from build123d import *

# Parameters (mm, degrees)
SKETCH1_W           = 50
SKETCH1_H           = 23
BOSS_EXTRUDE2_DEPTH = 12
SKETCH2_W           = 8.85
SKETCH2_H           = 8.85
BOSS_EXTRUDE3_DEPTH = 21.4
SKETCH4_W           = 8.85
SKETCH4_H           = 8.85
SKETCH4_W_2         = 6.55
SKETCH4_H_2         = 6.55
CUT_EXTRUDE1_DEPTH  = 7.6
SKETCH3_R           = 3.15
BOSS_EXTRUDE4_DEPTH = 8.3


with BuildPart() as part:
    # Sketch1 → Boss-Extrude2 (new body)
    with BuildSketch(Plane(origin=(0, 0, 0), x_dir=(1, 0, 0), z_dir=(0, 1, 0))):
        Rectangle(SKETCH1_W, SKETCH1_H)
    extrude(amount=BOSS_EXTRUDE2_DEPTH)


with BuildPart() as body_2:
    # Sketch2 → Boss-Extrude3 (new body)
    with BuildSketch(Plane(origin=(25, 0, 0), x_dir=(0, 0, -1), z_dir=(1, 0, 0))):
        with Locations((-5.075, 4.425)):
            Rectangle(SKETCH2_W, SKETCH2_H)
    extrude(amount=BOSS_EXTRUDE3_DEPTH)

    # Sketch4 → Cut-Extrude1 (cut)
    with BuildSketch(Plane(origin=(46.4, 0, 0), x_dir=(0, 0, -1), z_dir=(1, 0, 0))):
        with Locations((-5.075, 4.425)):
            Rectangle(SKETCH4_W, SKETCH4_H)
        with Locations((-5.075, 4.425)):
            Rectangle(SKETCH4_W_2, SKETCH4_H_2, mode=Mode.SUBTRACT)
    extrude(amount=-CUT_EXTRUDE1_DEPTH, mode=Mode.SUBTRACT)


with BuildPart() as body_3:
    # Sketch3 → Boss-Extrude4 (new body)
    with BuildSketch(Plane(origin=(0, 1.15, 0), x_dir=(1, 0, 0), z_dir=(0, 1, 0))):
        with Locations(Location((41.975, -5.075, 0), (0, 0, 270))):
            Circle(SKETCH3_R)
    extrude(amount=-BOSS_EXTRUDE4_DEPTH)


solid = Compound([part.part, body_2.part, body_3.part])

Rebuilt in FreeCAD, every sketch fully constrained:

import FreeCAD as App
import Part
import Sketcher

doc = App.newDocument("Part")
params = doc.addObject("Spreadsheet::Sheet", "Params")
for row, (alias, value) in enumerate([
    ("sketch1_width", "50 mm"),
    ("sketch1_height", "23 mm"),
    ("pad1_length", "12 mm"),
    ("sketch2_width", "8.85 mm"),
    ("pad2_length", "21.4 mm"),
    ("sketch3_width", "8.85 mm"),
    ("sketch3_width2", "6.55 mm"),
    ("pocket1_length", "7.6 mm"),
    ("sketch4_diameter", "6.3 mm"),
    ("pad3_length", "8.3 mm"),
], start=1):
    params.set(f"A{row}", alias)
    params.set(f"B{row}", "=" + value)
    params.setAlias(f"B{row}", alias)

body = doc.addObject("PartDesign::Body", "Body")

sketch1 = body.newObject("Sketcher::SketchObject", "Sketch")
sketch1.AttachmentSupport = (doc.getObject("XZ_Plane"), [""])
sketch1.MapMode = "FlatFace"
sketch1.addGeometry([
    Part.LineSegment(App.Vector(-25, -12, 0), App.Vector(-25, 12, 0)),
    Part.LineSegment(App.Vector(-25, 12, 0), App.Vector(25, 12, 0)),
    Part.LineSegment(App.Vector(25, 12, 0), App.Vector(25, -12, 0)),
    Part.LineSegment(App.Vector(25, -12, 0), App.Vector(-25, -12, 0)),
], False)
sketch1.addConstraint([
    Sketcher.Constraint("Coincident", 0, 2, 1, 1),
    Sketcher.Constraint("Coincident", 1, 2, 2, 1),
    Sketcher.Constraint("Coincident", 2, 2, 3, 1),
    Sketcher.Constraint("Coincident", 3, 2, 0, 1),
    Sketcher.Constraint("Vertical", 0),
    Sketcher.Constraint("Horizontal", 1),
    Sketcher.Constraint("Vertical", 2),
    Sketcher.Constraint("Horizontal", 3),
    Sketcher.Constraint("Symmetric", 0, 2, 2, 2, -1, 1),
    Sketcher.Constraint("DistanceX", 1, 1, 1, 2, 50.0),
    Sketcher.Constraint("DistanceY", 0, 1, 0, 2, 23.0),
])
sketch1.setExpression("Constraints[9]", "Params.sketch1_width")
sketch1.setExpression("Constraints[10]", "Params.sketch1_height")
pad1 = body.newObject("PartDesign::Pad", "Pad")
pad1.Profile = sketch1
pad1.setExpression("Length", "Params.pad1_length")
pad1.Reversed = True
body2 = doc.addObject("PartDesign::Body", "Body001")

sketch2 = body2.newObject("Sketcher::SketchObject", "Sketch001")
sketch2.AttachmentSupport = (doc.getObject("YZ_Plane001"), [""])
sketch2.MapMode = "FlatFace"
sketch2.AttachmentOffset = App.Placement(App.Vector(0, 0, 25), App.Rotation())
sketch2.addGeometry([
    Part.LineSegment(App.Vector(9, 10, 0), App.Vector(0, 10, 0)),
    Part.LineSegment(App.Vector(0, 10, 0), App.Vector(0, 1, 0)),
    Part.LineSegment(App.Vector(0, 1, 0), App.Vector(9, 1, 0)),
    Part.LineSegment(App.Vector(9, 1, 0), App.Vector(9, 10, 0)),
], False)
sketch2.addConstraint([
    Sketcher.Constraint("Coincident", 0, 2, 1, 1),
    Sketcher.Constraint("Coincident", 1, 2, 2, 1),
    Sketcher.Constraint("Coincident", 2, 2, 3, 1),
    Sketcher.Constraint("Coincident", 3, 2, 0, 1),
    Sketcher.Constraint("Horizontal", 0),
    Sketcher.Constraint("Vertical", 1),
    Sketcher.Constraint("Horizontal", 2),
    Sketcher.Constraint("Vertical", 3),
    Sketcher.Constraint("PointOnObject", 0, 2, -2),
    Sketcher.Constraint("Equal", 2, 1),
    Sketcher.Constraint("DistanceX", 0, 2, 0, 1, 8.85),
    Sketcher.Constraint("DistanceY", -1, 1, 0, 2, 9.5),
])
sketch2.setExpression("Constraints[10]", "Params.sketch2_width")
pad2 = body2.newObject("PartDesign::Pad", "Pad001")
pad2.Profile = sketch2
pad2.setExpression("Length", "Params.pad2_length")

sketch3 = body2.newObject("Sketcher::SketchObject", "Sketch002")
sketch3.AttachmentSupport = (doc.getObject("YZ_Plane001"), [""])
sketch3.MapMode = "FlatFace"
sketch3.AttachmentOffset = App.Placement(App.Vector(0, 0, 46.4), App.Rotation())
sketch3.addGeometry([
    Part.LineSegment(App.Vector(9, 10, 0), App.Vector(0, 10, 0)),
    Part.LineSegment(App.Vector(0, 10, 0), App.Vector(0, 1, 0)),
    Part.LineSegment(App.Vector(0, 1, 0), App.Vector(9, 1, 0)),
    Part.LineSegment(App.Vector(9, 1, 0), App.Vector(9, 10, 0)),
    Part.LineSegment(App.Vector(1, 2, 0), App.Vector(1, 8, 0)),
    Part.LineSegment(App.Vector(1, 8, 0), App.Vector(8, 8, 0)),
    Part.LineSegment(App.Vector(8, 8, 0), App.Vector(8, 2, 0)),
    Part.LineSegment(App.Vector(8, 2, 0), App.Vector(1, 2, 0)),
], False)
sketch3.addConstraint([
    Sketcher.Constraint("Coincident", 0, 2, 1, 1),
    Sketcher.Constraint("Coincident", 1, 2, 2, 1),
    Sketcher.Constraint("Coincident", 2, 2, 3, 1),
    Sketcher.Constraint("Coincident", 3, 2, 0, 1),
    Sketcher.Constraint("Coincident", 4, 2, 5, 1),
    Sketcher.Constraint("Coincident", 5, 2, 6, 1),
    Sketcher.Constraint("Coincident", 6, 2, 7, 1),
    Sketcher.Constraint("Coincident", 7, 2, 4, 1),
    Sketcher.Constraint("Horizontal", 0),
    Sketcher.Constraint("Vertical", 1),
    Sketcher.Constraint("Horizontal", 2),
    Sketcher.Constraint("Vertical", 3),
    Sketcher.Constraint("Vertical", 4),
    Sketcher.Constraint("Horizontal", 5),
    Sketcher.Constraint("Vertical", 6),
    Sketcher.Constraint("Horizontal", 7),
    Sketcher.Constraint("PointOnObject", 0, 2, -2),
    Sketcher.Constraint("Equal", 2, 1),
    Sketcher.Constraint("Equal", 7, 4),
    Sketcher.Constraint("DistanceX", 0, 2, 0, 1, 8.85),
    Sketcher.Constraint("DistanceX", 5, 1, 5, 2, 6.55),
    Sketcher.Constraint("DistanceY", -1, 1, 0, 2, 9.5),
    Sketcher.Constraint("DistanceX", -1, 1, 5, 2, 7.7),
    Sketcher.Constraint("DistanceY", -1, 1, 6, 2, 1.8),
])
sketch3.setExpression("Constraints[19]", "Params.sketch3_width")
sketch3.setExpression("Constraints[20]", "Params.sketch3_width2")
pocket1 = body2.newObject("PartDesign::Pocket", "Pocket")
pocket1.Profile = sketch3
pocket1.setExpression("Length", "Params.pocket1_length")
body3 = doc.addObject("PartDesign::Body", "Body002")

sketch4 = body3.newObject("Sketcher::SketchObject", "Sketch003")
sketch4.AttachmentSupport = (doc.getObject("XZ_Plane002"), [""])
sketch4.MapMode = "FlatFace"
sketch4.AttachmentOffset = App.Placement(App.Vector(0, 0, -1.15), App.Rotation())
sketch4.addGeometry(Part.Circle(App.Vector(42, 5.1, 0), App.Vector(0, 0, 1), 3.1), False)
sketch4.addConstraint([
    Sketcher.Constraint("Diameter", 0, 6.3),
    Sketcher.Constraint("DistanceX", -1, 1, 0, 3, 41.975),
    Sketcher.Constraint("DistanceY", -1, 1, 0, 3, 5.075),
])
sketch4.setExpression("Constraints[0]", "Params.sketch4_diameter")
pad3 = body3.newObject("PartDesign::Pad", "Pad002")
pad3.Profile = sketch4
pad3.setExpression("Length", "Params.pad3_length")

doc.recompute()
